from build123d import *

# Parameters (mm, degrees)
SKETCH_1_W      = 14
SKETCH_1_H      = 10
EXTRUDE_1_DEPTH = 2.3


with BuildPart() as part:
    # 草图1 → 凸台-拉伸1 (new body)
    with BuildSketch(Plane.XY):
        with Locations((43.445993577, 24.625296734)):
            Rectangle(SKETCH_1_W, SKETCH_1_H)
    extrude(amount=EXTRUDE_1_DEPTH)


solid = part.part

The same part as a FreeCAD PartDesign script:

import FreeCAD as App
import Part
import Sketcher
from FreeCAD import Vector
Q = App.Units.Quantity


def add_polygon(sketch, points):
    """Adds a closed chain of lines whose ends are joined by coincident constraints."""
    first, n = sketch.GeometryCount, len(points)
    for a, b in zip(points, points[1:] + points[:1]):
        sketch.addGeometry(Part.LineSegment(App.Vector(*a, 0), App.Vector(*b, 0)), False)
    for i in range(n):
        sketch.addConstraint(Sketcher.Constraint("Coincident", first + i, 2, first + (i + 1) % n, 1))

doc = App.newDocument("Part")
params = doc.addObject("Spreadsheet::Sheet", "Params")
for row, (alias, value) in enumerate([
    ("sketch1_width", "14 mm"),
    ("sketch1_height", "10 mm"),
    ("pad1_length", "2.3 mm"),
], start=1):
    params.set(f"A{row}", alias)
    params.set(f"B{row}", "=" + value)
    params.setAlias(f"B{row}", alias)

body = doc.addObject("PartDesign::Body", "Body")

# Sketch on XY plane
sketch1 = body.newObject("Sketcher::SketchObject", "Sketch")
sketch1.AttachmentSupport = (doc.getObject("XY_Plane"), [""])
sketch1.MapMode = "FlatFace"
add_polygon(sketch1, [(36, 30), (36, 20), (50, 20), (50, 30)])  # lines 0-3
sketch1.addConstraint(Sketcher.Constraint("Vertical", 0))
sketch1.addConstraint(Sketcher.Constraint("Horizontal", 1))
sketch1.addConstraint(Sketcher.Constraint("Vertical", 2))
sketch1.addConstraint(Sketcher.Constraint("Horizontal", 3))
sketch1.addConstraint(Sketcher.Constraint("DistanceX", 1, 1, 1, 2, Q("14 mm")))
sketch1.addConstraint(Sketcher.Constraint("DistanceY", 0, 2, 0, 1, Q("10 mm")))
sketch1.addConstraint(Sketcher.Constraint("DistanceX", -1, 1, 0, 2, Q("36.445994 mm")))
sketch1.addConstraint(Sketcher.Constraint("DistanceY", -1, 1, 0, 2, Q("19.625297 mm")))
sketch1.setExpression("Constraints[8]", "Params.sketch1_width")
sketch1.setExpression("Constraints[9]", "Params.sketch1_height")
pad1 = body.newObject("PartDesign::Pad", "Pad")
pad1.Profile = sketch1
pad1.setExpression("Length", "Params.pad1_length")

doc.recompute()
